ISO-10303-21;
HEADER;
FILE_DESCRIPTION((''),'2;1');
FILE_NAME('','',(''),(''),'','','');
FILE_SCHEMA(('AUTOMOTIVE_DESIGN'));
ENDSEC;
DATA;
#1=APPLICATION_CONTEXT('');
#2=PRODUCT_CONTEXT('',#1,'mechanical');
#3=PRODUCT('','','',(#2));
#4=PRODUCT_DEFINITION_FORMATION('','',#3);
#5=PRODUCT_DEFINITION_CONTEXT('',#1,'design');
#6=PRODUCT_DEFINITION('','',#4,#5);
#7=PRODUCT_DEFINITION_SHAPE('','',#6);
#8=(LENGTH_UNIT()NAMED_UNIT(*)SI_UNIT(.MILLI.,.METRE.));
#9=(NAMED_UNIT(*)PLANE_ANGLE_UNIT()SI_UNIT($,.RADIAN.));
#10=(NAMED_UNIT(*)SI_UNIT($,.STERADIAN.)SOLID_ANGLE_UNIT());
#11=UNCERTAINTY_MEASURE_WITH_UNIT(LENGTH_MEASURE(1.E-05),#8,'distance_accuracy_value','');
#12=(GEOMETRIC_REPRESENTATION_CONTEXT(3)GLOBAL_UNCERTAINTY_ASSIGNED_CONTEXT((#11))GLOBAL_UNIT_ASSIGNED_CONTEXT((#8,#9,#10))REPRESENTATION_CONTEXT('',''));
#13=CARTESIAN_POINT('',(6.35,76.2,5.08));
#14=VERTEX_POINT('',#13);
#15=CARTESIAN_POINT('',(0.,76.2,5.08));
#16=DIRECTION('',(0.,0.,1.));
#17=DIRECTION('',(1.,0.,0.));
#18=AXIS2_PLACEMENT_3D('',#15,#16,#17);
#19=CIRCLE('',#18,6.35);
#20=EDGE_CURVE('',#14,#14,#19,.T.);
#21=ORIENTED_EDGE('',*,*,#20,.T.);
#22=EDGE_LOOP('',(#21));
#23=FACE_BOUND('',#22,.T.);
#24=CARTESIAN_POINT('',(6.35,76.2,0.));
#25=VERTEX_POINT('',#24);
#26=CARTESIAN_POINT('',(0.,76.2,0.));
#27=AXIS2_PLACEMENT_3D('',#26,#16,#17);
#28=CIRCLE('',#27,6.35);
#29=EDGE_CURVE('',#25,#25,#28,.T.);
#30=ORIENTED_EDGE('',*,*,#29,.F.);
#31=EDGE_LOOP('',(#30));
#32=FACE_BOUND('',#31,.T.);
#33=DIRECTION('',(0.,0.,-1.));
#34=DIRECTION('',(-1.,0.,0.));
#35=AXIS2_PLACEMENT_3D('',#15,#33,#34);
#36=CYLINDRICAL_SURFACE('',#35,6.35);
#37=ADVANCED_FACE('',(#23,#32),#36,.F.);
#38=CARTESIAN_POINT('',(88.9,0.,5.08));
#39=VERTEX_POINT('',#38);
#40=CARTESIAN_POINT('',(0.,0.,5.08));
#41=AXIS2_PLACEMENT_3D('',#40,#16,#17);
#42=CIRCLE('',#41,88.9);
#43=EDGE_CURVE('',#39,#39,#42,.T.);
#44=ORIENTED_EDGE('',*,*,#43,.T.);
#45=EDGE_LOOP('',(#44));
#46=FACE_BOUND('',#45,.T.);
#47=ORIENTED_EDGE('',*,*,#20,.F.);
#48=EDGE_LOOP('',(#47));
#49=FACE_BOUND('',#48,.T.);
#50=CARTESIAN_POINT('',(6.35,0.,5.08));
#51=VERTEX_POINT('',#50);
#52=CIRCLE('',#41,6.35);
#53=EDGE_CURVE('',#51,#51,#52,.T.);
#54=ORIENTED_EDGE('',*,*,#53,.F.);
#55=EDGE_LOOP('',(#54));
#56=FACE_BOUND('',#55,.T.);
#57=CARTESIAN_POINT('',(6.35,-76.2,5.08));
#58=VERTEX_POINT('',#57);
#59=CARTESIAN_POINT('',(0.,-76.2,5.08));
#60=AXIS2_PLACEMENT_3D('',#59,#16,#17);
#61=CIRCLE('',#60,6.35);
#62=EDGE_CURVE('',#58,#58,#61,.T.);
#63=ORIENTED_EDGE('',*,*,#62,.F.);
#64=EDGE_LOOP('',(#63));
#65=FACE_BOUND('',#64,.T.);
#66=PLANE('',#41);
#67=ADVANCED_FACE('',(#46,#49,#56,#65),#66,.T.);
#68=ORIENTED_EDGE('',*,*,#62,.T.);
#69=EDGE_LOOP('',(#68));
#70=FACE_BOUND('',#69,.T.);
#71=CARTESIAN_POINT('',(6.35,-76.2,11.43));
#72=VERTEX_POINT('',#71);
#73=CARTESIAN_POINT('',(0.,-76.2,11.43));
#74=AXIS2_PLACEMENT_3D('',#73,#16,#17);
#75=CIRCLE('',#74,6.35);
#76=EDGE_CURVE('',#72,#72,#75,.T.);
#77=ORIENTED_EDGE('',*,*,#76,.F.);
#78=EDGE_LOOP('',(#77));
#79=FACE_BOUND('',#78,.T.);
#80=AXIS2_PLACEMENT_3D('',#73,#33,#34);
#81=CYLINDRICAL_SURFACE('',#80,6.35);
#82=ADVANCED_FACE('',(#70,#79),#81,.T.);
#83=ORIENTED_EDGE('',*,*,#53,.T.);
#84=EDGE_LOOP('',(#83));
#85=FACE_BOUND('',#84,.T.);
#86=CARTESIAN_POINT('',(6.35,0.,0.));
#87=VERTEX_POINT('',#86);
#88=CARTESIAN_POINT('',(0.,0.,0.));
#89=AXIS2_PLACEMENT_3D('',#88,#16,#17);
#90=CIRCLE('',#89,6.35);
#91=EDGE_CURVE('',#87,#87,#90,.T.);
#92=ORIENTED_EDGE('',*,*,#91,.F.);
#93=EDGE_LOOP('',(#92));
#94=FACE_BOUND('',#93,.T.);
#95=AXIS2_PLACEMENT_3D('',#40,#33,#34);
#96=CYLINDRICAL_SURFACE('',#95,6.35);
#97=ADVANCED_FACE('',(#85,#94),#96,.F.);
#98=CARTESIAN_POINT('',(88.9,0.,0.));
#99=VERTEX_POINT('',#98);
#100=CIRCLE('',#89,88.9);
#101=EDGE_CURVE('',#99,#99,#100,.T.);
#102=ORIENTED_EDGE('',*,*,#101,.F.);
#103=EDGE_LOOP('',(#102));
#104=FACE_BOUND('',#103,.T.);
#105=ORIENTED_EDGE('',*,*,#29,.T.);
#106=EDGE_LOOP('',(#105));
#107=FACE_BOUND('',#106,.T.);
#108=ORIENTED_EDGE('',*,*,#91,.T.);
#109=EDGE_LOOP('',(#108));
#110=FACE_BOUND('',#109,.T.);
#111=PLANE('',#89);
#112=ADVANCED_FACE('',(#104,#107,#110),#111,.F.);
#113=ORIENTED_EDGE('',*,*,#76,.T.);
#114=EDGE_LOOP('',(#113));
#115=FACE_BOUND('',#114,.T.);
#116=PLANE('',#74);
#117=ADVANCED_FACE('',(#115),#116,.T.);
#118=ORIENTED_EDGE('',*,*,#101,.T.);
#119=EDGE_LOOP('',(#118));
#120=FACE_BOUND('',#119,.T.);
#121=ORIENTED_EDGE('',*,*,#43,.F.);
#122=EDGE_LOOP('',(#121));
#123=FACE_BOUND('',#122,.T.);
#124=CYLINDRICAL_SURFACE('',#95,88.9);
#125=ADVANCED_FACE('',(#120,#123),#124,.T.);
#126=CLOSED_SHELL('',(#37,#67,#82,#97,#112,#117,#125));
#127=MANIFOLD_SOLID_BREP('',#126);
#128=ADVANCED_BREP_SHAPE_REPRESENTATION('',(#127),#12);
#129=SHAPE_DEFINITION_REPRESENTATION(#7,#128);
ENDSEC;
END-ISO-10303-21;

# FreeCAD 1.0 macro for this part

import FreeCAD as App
import Part
import Sketcher

V = App.Vector
Q = App.Units.Quantity

doc = App.newDocument("Part")
params = doc.addObject("Spreadsheet::Sheet", "Params")
for row, (alias, value) in enumerate([
    ("sketch1_diameter", "7 in"),
    ("sketch1_diameter2", "0.5 in"),
    ("pad1_length", "0.2 in"),
    ("sketch2_diameter", "0.5 in"),
    ("pad2_length", "0.45 in"),
], start=1):
    params.set(f"A{row}", alias)
    params.set(f"B{row}", "=" + value)
    params.setAlias(f"B{row}", alias)

body = doc.addObject("PartDesign::Body", "Body")

# Sketch on XY plane
sketch1 = body.newObject("Sketcher::SketchObject", "Sketch")
sketch1.AttachmentSupport = (doc.getObject("XY_Plane"), [""])
sketch1.MapMode = "FlatFace"
sketch1.addGeometry(Part.Circle(V(0, 0, 0), V(0, 0, 1), 89), False)
sketch1.addGeometry(Part.Circle(V(0, -76, 0), V(0, 0, 1), 6), False)
sketch1.addGeometry(Part.Circle(V(0, 0, 0), V(0, 0, 1), 6), False)
sketch1.addGeometry(Part.Circle(V(0, 76, 0), V(0, 0, 1), 6), False)
sketch1.addConstraint(Sketcher.Constraint("Coincident", 0, 3, -1, 1))
sketch1.addConstraint(Sketcher.Constraint("Coincident", 2, 3, -1, 1))
sketch1.addConstraint(Sketcher.Constraint("Equal", 1, 2))
sketch1.addConstraint(Sketcher.Constraint("Equal", 2, 3))
sketch1.addConstraint(Sketcher.Constraint("Symmetric", 1, 3, 3, 3, -1, 1))
sketch1.addConstraint(Sketcher.Constraint("PointOnObject", 1, 3, -2))
sketch1.addConstraint(Sketcher.Constraint("Diameter", 0, Q("7 in")))
sketch1.addConstraint(Sketcher.Constraint("Diameter", 1, Q("0.5 in")))
sketch1.addConstraint(Sketcher.Constraint("DistanceY", 1, 3, -1, 1, Q("3 in")))
sketch1.setExpression("Constraints[6]", "Params.sketch1_diameter")
sketch1.setExpression("Constraints[7]", "Params.sketch1_diameter2")
pad1 = body.newObject("PartDesign::Pad", "Pad")
pad1.Profile = sketch1
pad1.setExpression("Length", "Params.pad1_length")

# Sketch on XY plane
sketch2 = body.newObject("Sketcher::SketchObject", "Sketch001")
sketch2.AttachmentSupport = (doc.getObject("XY_Plane"), [""])
sketch2.MapMode = "FlatFace"
sketch2.addGeometry(Part.Circle(V(0, -76, 0), V(0, 0, 1), 6), False)
sketch2.addConstraint(Sketcher.Constraint("PointOnObject", 0, 3, -2))
sketch2.addConstraint(Sketcher.Constraint("Diameter", 0, Q("0.5 in")))
sketch2.addConstraint(Sketcher.Constraint("DistanceY", 0, 3, -1, 1, Q("3 in")))
sketch2.setExpression("Constraints[1]", "Params.sketch2_diameter")
pad2 = body.newObject("PartDesign::Pad", "Pad001")
pad2.Profile = sketch2
pad2.setExpression("Length", "Params.pad2_length")

doc.recompute()
